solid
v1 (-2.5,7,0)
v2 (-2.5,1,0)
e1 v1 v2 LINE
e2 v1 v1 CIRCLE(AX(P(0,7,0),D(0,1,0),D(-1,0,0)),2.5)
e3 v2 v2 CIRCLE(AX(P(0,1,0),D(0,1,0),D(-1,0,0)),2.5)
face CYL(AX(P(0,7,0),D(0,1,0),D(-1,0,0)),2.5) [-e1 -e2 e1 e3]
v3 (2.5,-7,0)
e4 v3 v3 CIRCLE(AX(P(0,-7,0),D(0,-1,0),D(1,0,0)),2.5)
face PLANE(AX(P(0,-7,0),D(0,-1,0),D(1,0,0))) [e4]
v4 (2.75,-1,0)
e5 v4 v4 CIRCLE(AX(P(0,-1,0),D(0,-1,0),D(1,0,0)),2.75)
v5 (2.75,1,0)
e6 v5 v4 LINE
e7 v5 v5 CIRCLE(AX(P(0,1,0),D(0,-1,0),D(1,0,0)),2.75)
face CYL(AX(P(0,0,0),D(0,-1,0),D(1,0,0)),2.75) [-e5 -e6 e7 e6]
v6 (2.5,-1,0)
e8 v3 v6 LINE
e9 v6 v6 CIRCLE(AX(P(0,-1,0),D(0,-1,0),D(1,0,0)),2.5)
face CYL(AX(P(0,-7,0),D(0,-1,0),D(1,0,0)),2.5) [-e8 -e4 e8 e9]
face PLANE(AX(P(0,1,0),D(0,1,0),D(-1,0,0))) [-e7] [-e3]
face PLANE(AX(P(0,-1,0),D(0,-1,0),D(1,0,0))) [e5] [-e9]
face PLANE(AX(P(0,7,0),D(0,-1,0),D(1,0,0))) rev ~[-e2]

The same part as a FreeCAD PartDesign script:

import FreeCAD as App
import Part
import Sketcher

V = App.Vector
Q = App.Units.Quantity

doc = App.newDocument("Part")
params = doc.addObject("Spreadsheet::Sheet", "Params")
for row, (alias, value) in enumerate([
    ("sketch1_diameter", "5.5 mm"),
    ("pad1_length", "14 mm"),
    ("sketch2_diameter", "5 mm"),
    ("sketch2_diameter2", "5.5 mm"),
    ("pocket1_length", "6 mm"),
    ("sketch3_diameter", "5 mm"),
    ("sketch3_diameter2", "5.5 mm"),
    ("pocket2_length", "6 mm"),
], start=1):
    params.set(f"A{row}", alias)
    params.set(f"B{row}", "=" + value)
    params.setAlias(f"B{row}", alias)

body = doc.addObject("PartDesign::Body", "Body")

sketch1 = body.newObject("Sketcher::SketchObject", "Sketch")
sketch1.AttachmentSupport = (doc.getObject("XZ_Plane"), [""])
sketch1.MapMode = "FlatFace"
sketch1.addGeometry(Part.Circle(V(0, 0, 0), V(0, 0, 1), 2.75), False)
sketch1.addConstraint([
    Sketcher.Constraint("Coincident", 0, 3, -1, 1),
    Sketcher.Constraint("Diameter", 0, Q("5.5 mm")),
])
sketch1.setExpression("Constraints[1]", "Params.sketch1_diameter")
pad1 = body.newObject("PartDesign::Pad", "Pad")
pad1.Profile = sketch1
pad1.setExpression("Length", "Params.pad1_length")
pad1.Midplane = True

sketch2 = body.newObject("Sketcher::SketchObject", "Sketch001")
sketch2.AttachmentSupport = (doc.getObject("XZ_Plane"), [""])
sketch2.MapMode = "FlatFace"
sketch2.AttachmentOffset = App.Placement(V(0, 0, 7), App.Rotation())
sketch2.addGeometry([
    Part.Circle(V(0, 0, 0), V(0, 0, 1), 2.75),
    Part.Circle(V(0, 0, 0), V(0, 0, 1), 2.5),
], False)
sketch2.addConstraint([
    Sketcher.Constraint("Coincident", 0, 3, -1, 1),
    Sketcher.Constraint("Coincident", 1, 3, -1, 1),
    Sketcher.Constraint("Diameter", 1, Q("5 mm")),
    Sketcher.Constraint("Diameter", 0, Q("5.5 mm")),
])
sketch2.setExpression("Constraints[2]", "Params.sketch2_diameter")
sketch2.setExpression("Constraints[3]", "Params.sketch2_diameter2")
pocket1 = body.newObject("PartDesign::Pocket", "Pocket")
pocket1.Profile = sketch2
pocket1.setExpression("Length", "Params.pocket1_length")

sketch3 = body.newObject("Sketcher::SketchObject", "Sketch002")
sketch3.AttachmentSupport = (doc.getObject("XZ_Plane"), [""])
sketch3.MapMode = "FlatFace"
sketch3.AttachmentOffset = App.Placement(V(0, 0, -7), App.Rotation())
sketch3.addGeometry([
    Part.Circle(V(0, 0, 0), V(0, 0, 1), 2.75),
    Part.Circle(V(0, 0, 0), V(0, 0, 1), 2.5),
], False)
sketch3.addConstraint([
    Sketcher.Constraint("Coincident", 0, 3, -1, 1),
    Sketcher.Constraint("Coincident", 1, 3, -1, 1),
    Sketcher.Constraint("Diameter", 1, Q("5 mm")),
    Sketcher.Constraint("Diameter", 0, Q("5.5 mm")),
])
sketch3.setExpression("Constraints[2]", "Params.sketch3_diameter")
sketch3.setExpression("Constraints[3]", "Params.sketch3_diameter2")
pocket2 = body.newObject("PartDesign::Pocket", "Pocket001")
pocket2.Profile = sketch3
pocket2.setExpression("Length", "Params.pocket2_length")
pocket2.Reversed = True

doc.recompute()
